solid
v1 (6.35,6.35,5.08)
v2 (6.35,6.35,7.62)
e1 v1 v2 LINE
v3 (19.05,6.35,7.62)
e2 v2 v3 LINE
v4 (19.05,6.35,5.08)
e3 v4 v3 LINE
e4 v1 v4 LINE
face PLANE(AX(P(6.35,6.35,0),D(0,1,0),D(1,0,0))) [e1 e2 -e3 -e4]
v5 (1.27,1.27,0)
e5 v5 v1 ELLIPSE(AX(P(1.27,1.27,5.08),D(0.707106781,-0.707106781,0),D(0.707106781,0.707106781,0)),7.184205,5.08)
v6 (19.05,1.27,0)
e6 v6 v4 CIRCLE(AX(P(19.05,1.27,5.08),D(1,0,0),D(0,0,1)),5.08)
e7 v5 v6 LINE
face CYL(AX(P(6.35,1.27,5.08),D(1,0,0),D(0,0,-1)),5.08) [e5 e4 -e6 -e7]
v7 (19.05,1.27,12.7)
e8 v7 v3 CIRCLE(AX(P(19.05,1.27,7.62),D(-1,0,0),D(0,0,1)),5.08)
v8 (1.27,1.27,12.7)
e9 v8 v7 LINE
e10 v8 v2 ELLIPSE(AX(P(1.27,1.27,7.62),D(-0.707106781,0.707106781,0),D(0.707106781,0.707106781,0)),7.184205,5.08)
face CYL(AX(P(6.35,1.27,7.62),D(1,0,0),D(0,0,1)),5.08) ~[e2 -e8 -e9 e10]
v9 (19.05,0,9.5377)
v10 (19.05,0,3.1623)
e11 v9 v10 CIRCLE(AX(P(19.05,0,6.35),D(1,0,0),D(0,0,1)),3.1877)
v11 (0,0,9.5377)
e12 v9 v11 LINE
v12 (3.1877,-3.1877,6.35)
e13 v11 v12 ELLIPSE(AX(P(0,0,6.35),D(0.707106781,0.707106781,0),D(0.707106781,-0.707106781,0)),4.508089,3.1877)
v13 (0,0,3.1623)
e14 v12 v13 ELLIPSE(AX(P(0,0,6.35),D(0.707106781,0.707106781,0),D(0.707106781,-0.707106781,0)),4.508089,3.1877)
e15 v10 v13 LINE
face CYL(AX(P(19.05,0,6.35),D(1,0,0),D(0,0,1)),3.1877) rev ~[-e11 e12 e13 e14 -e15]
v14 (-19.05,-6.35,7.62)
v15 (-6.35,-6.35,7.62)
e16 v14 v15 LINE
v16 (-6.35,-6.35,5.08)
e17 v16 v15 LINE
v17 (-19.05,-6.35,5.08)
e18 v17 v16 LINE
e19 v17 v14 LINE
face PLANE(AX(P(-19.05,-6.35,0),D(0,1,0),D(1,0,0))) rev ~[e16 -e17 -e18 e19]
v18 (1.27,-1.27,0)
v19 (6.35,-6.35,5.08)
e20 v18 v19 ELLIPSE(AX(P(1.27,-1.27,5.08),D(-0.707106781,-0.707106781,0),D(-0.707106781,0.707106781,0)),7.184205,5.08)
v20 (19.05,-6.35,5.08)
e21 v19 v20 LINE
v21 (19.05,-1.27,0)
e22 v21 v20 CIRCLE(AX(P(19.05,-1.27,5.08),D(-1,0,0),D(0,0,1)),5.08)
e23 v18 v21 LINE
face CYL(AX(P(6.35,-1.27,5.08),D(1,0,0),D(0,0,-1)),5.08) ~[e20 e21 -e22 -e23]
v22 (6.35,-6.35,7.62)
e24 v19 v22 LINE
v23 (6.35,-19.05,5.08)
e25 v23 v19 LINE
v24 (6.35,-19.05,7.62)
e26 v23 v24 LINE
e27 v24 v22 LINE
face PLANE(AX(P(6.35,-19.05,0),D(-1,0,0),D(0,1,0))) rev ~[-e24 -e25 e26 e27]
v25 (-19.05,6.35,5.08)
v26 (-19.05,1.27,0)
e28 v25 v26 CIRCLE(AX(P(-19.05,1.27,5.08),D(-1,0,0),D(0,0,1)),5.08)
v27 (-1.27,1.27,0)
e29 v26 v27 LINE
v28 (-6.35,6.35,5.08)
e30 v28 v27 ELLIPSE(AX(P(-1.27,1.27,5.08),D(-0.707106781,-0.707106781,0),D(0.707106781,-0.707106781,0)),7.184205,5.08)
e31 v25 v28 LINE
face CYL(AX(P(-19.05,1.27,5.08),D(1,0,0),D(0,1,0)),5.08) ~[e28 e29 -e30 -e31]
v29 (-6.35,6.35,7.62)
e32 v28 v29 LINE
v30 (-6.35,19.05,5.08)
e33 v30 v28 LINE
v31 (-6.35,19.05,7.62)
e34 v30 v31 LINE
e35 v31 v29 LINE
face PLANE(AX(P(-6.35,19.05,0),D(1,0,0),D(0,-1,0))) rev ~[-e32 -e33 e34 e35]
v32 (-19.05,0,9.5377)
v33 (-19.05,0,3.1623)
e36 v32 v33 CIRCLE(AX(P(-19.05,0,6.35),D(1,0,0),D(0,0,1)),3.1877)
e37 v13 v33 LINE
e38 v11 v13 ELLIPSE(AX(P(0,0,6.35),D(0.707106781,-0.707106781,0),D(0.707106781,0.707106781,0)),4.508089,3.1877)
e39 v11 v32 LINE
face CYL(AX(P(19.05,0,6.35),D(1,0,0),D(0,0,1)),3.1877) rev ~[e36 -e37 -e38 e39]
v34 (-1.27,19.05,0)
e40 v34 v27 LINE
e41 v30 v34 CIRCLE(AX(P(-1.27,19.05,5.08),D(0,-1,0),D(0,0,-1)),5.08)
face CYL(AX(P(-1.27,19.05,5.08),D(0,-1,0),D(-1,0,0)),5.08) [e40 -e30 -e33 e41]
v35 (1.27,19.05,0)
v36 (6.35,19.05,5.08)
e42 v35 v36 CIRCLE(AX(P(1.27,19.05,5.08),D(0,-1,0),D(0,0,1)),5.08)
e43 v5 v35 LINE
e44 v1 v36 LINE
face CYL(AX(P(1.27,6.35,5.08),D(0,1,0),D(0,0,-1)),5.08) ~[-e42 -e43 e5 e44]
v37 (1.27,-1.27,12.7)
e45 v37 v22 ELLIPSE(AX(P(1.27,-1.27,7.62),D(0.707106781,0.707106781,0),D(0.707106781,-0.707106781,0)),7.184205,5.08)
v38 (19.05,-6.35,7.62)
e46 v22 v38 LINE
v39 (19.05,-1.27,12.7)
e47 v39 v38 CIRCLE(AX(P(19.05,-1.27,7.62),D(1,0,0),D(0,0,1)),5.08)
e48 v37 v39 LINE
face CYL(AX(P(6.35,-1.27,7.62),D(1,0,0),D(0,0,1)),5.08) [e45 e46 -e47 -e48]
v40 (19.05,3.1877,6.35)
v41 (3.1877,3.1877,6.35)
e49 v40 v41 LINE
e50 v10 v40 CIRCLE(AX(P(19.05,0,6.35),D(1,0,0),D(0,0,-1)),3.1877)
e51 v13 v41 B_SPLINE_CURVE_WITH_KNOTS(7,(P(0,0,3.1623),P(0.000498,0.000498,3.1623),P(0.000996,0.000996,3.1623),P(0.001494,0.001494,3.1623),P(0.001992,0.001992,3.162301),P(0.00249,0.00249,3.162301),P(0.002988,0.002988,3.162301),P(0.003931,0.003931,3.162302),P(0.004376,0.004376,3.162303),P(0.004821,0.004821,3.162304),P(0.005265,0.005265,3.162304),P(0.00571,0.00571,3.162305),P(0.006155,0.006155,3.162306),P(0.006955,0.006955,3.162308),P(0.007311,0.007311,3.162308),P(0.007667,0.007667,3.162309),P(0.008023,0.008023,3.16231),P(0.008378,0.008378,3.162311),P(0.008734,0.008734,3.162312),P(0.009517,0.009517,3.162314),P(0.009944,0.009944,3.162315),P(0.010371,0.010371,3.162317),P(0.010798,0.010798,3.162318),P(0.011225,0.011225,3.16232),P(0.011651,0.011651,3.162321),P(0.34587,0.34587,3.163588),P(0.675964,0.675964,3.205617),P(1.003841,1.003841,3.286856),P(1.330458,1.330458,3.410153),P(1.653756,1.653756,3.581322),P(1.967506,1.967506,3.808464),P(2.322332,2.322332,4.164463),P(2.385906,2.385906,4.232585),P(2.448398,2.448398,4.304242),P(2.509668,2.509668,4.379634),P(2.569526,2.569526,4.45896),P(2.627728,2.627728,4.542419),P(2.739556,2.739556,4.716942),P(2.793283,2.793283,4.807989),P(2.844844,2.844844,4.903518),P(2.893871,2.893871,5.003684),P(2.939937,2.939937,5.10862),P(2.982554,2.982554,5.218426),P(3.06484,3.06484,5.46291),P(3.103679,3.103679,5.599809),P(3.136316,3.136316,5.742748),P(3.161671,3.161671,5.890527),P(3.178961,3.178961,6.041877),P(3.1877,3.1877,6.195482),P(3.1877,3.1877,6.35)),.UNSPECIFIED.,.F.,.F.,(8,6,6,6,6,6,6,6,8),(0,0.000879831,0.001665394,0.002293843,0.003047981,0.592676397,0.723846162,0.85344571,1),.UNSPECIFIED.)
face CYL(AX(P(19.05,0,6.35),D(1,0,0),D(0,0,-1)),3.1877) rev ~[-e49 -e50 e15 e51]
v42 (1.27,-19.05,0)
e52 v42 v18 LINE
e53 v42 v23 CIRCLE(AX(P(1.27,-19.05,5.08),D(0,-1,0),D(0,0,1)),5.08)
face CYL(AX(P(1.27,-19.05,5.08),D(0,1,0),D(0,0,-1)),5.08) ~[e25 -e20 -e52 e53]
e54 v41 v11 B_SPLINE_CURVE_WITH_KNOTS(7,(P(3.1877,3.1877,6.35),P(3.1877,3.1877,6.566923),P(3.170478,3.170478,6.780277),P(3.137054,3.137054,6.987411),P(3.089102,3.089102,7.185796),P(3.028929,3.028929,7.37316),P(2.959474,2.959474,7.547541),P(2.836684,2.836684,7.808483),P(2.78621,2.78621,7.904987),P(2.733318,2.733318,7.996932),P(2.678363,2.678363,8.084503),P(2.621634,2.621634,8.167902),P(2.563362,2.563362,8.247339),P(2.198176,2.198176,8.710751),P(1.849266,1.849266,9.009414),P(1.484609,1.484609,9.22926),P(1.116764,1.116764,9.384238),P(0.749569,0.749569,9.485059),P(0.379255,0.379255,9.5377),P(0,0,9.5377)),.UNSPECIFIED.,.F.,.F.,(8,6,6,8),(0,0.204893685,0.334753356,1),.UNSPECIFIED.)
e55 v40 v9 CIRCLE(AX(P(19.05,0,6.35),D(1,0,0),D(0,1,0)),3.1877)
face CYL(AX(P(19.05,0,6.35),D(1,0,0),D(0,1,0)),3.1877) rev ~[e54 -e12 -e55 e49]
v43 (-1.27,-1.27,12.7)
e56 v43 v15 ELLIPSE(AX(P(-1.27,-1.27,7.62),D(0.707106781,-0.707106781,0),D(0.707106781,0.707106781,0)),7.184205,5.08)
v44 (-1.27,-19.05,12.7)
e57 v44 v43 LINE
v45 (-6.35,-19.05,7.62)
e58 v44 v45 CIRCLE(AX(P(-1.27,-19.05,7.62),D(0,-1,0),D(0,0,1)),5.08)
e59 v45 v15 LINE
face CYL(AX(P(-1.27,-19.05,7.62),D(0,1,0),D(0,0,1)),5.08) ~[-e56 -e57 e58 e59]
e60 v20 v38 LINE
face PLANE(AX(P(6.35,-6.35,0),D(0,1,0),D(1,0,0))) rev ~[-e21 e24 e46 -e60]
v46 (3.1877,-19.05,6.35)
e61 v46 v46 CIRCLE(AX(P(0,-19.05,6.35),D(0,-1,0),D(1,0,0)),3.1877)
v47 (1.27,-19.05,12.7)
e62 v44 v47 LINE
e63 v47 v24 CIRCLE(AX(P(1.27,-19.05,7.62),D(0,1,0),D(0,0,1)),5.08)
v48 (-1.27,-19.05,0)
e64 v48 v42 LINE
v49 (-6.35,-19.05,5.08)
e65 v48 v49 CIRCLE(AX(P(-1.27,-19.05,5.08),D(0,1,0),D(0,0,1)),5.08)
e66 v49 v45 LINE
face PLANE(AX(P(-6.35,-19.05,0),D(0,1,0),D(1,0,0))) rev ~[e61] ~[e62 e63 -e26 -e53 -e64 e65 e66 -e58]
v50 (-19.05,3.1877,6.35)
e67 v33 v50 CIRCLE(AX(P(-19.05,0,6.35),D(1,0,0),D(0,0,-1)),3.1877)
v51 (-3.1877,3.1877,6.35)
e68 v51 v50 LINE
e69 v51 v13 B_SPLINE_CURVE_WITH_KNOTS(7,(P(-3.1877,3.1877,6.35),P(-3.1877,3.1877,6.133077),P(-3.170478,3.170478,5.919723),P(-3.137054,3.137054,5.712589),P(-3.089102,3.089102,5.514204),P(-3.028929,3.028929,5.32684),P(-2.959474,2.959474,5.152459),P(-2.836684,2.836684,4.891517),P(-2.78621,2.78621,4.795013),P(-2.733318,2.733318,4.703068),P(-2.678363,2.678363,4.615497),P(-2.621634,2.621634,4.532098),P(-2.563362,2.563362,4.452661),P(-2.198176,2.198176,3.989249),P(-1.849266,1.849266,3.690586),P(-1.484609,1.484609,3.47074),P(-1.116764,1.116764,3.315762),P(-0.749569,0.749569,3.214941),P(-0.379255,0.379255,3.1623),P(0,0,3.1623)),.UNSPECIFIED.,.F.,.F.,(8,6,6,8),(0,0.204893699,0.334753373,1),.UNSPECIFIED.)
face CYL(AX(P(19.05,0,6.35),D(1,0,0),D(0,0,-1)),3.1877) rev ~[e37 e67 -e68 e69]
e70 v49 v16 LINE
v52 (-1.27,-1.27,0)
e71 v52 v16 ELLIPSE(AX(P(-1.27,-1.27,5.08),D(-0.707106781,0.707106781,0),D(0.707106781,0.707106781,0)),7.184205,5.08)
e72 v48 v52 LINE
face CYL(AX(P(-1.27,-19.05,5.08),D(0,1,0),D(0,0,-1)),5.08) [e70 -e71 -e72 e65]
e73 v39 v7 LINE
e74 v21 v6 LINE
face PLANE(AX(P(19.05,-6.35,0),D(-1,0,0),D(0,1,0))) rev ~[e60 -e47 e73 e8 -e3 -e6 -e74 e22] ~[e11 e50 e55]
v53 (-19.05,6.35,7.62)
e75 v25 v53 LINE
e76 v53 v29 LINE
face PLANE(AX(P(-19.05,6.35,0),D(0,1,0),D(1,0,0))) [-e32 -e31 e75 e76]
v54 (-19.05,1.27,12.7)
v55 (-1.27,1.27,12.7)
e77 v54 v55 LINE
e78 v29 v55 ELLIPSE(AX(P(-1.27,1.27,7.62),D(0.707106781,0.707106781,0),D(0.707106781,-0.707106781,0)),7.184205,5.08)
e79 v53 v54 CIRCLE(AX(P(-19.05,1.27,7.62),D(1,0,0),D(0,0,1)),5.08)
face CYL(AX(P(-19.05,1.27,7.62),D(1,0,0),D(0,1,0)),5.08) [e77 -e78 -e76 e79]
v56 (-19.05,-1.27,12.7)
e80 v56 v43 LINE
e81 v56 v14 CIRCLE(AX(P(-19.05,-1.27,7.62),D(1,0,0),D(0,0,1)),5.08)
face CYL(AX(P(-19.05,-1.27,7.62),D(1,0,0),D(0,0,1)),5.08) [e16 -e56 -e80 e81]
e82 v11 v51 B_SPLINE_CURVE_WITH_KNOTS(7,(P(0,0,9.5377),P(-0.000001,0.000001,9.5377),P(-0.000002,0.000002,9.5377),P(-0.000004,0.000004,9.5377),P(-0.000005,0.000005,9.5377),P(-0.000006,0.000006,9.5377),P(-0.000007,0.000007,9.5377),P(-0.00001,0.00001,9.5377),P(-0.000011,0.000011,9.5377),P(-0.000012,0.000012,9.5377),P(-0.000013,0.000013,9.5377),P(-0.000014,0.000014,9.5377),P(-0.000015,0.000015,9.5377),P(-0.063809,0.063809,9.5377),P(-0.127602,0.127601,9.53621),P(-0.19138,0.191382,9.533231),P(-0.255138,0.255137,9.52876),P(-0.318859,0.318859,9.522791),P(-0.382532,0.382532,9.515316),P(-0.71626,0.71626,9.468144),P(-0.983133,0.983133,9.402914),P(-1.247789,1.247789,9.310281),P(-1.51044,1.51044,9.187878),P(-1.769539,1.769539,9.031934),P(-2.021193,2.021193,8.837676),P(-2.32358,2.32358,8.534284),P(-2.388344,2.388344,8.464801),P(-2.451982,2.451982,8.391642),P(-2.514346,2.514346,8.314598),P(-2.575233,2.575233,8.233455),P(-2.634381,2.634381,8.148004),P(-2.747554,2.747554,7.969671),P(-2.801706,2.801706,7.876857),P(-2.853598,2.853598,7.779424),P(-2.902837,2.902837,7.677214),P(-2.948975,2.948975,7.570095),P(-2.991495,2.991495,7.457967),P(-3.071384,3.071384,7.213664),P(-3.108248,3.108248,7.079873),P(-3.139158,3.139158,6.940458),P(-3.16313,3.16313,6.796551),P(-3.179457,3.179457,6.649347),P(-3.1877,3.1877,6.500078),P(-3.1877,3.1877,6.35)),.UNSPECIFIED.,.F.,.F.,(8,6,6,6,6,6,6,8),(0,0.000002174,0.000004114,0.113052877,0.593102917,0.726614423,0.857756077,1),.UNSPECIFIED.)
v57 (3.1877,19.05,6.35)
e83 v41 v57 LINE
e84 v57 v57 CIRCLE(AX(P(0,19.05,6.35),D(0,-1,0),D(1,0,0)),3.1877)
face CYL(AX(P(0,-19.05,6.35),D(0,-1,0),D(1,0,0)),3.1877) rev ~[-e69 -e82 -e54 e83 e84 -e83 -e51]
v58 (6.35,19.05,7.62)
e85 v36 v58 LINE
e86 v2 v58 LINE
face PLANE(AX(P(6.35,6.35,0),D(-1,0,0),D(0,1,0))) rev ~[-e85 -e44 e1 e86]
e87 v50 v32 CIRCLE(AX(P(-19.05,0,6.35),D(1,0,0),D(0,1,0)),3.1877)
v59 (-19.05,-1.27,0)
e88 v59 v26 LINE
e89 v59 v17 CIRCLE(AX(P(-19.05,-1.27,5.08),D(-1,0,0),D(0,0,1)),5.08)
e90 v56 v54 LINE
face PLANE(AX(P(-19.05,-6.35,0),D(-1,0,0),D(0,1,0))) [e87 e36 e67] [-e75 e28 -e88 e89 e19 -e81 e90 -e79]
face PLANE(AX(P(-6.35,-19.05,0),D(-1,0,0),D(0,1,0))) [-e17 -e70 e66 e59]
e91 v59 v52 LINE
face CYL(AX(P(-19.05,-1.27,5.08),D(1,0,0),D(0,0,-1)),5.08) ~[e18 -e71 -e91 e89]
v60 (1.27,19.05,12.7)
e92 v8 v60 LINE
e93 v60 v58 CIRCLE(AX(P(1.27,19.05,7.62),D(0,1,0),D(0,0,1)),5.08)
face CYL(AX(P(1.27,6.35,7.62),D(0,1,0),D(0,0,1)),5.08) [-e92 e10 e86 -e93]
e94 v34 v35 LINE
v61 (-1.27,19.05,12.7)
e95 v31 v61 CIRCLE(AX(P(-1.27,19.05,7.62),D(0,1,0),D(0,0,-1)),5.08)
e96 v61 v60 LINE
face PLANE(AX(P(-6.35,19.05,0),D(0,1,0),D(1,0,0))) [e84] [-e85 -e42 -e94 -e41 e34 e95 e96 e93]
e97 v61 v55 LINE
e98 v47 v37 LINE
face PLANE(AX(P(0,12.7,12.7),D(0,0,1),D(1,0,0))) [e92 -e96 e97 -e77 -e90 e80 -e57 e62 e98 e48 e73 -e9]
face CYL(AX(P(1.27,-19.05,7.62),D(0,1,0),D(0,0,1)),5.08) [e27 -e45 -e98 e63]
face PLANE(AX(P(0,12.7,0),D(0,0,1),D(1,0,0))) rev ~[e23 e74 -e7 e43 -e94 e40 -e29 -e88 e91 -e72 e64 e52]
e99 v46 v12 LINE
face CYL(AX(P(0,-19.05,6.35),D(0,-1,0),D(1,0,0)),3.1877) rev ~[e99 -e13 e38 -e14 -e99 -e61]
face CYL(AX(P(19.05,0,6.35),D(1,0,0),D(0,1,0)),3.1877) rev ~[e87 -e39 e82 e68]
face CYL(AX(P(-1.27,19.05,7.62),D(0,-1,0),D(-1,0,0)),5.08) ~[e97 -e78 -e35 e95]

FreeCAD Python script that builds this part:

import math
import FreeCAD as App
import Part
import Sketcher
from FreeCAD import Vector
Q = App.Units.Quantity


def edges_at(feature, points):
    """Names of the edges that pass closest to the given points."""
    edges = feature.Shape.Edges
    near = lambda p: min(range(len(edges)), key=lambda i: edges[i].distToShape(Part.Vertex(*p))[0])
    return sorted({f"Edge{near(p) + 1}" for p in points})


def add_polygon(sketch, points):
    """Adds a closed chain of lines whose ends are joined by coincident constraints."""
    first, n = sketch.GeometryCount, len(points)
    for a, b in zip(points, points[1:] + points[:1]):
        sketch.addGeometry(Part.LineSegment(App.Vector(*a, 0), App.Vector(*b, 0)), False)
    for i in range(n):
        sketch.addConstraint(Sketcher.Constraint("Coincident", first + i, 2, first + (i + 1) % n, 1))

doc = App.newDocument("Part")
body = doc.addObject("PartDesign::Body", "Body")

sketch1 = doc.addObject("Sketcher::SketchObject", "Sketch")
body.addObject(sketch1)
sketch1.AttachmentSupport = (doc.XY_Plane, [""])
sketch1.MapMode = "FlatFace"
add_polygon(sketch1, [(-6, 19), (-6, 6), (-19, 6), (-19, -6), (-6, -6), (-6, -19), (6, -19), (6, -6), (19, -6), (19, 6), (6, 6), (6, 19)])
sketch1.addConstraint(Sketcher.Constraint("Vertical", 0))
sketch1.addConstraint(Sketcher.Constraint("Horizontal", 1))
sketch1.addConstraint(Sketcher.Constraint("Vertical", 2))
sketch1.addConstraint(Sketcher.Constraint("Horizontal", 3))
sketch1.addConstraint(Sketcher.Constraint("Vertical", 4))
sketch1.addConstraint(Sketcher.Constraint("Horizontal", 5))
sketch1.addConstraint(Sketcher.Constraint("Vertical", 6))
sketch1.addConstraint(Sketcher.Constraint("Horizontal", 7))
sketch1.addConstraint(Sketcher.Constraint("Vertical", 8))
sketch1.addConstraint(Sketcher.Constraint("Horizontal", 9))
sketch1.addConstraint(Sketcher.Constraint("Vertical", 10))
sketch1.addConstraint(Sketcher.Constraint("Horizontal", 11))
sketch1.addConstraint(Sketcher.Constraint("Symmetric", 0, 2, 6, 2, -1, 1))
sketch1.addConstraint(Sketcher.Constraint("Symmetric", 2, 2, 8, 2, -1, 1))
sketch1.addConstraint(Sketcher.Constraint("Symmetric", 4, 2, 10, 2, -1, 1))
sketch1.addConstraint(Sketcher.Constraint("Symmetric", 3, 2, 6, 2, -2))
sketch1.addConstraint(Sketcher.Constraint("Equal", 3, 5))
sketch1.addConstraint(Sketcher.Constraint("Equal", 11, 0))
sketch1.addConstraint(Sketcher.Constraint("Equal", 0, 2))
sketch1.addConstraint(Sketcher.Constraint("DistanceX", 1, 2, 1, 1, Q("0.5 in")))
pad1 = doc.addObject("PartDesign::Pad", "Pad")
body.addObject(pad1)
pad1.Profile = sketch1
pad1.Length = Q("0.5 in")

sketch2 = doc.addObject("Sketcher::SketchObject", "Sketch001")
body.addObject(sketch2)
sketch2.AttachmentSupport = (doc.YZ_Plane, [""])
sketch2.MapMode = "FlatFace"
sketch2.AttachmentOffset = App.Placement(Vector(0, 0, 0.75 * 25.4), App.Rotation())
sketch2.addGeometry(Part.ArcOfCircle(Part.Circle(Vector(0, 6.3, 0), Vector(0, 0, 1), 3.2), math.radians(90), math.radians(270)), False)
sketch2.addGeometry(Part.ArcOfCircle(Part.Circle(Vector(0, 6.3, 0), Vector(0, 0, 1), 3.2), math.radians(-90), math.radians(0)), False)
sketch2.addGeometry(Part.ArcOfCircle(Part.Circle(Vector(0, 6.3, 0), Vector(0, 0, 1), 3.2), math.radians(0), math.radians(90)), False)
sketch2.addConstraint(Sketcher.Constraint("Tangent", 0, 2, 1, 1))
sketch2.addConstraint(Sketcher.Constraint("Tangent", 1, 2, 2, 1))
sketch2.addConstraint(Sketcher.Constraint("Tangent", 2, 2, 0, 1))
sketch2.addConstraint(Sketcher.Constraint("PointOnObject", 0, 3, -2))
sketch2.addConstraint(Sketcher.Constraint("PointOnObject", 0, 2, -2))
sketch2.addConstraint(Sketcher.Constraint("PointOnObject", 2, 2, -2))
sketch2.addConstraint(Sketcher.Constraint("Horizontal", 2, 3, 1, 2))
sketch2.addConstraint(Sketcher.Constraint("Radius", 0, Q("0.1255 in")))
sketch2.addConstraint(Sketcher.Constraint("DistanceY", -1, 1, 0, 3, Q("0.25 in")))
pocket1 = doc.addObject("PartDesign::Pocket", "Pocket")
body.addObject(pocket1)
pocket1.Profile = sketch2
pocket1.Length = Q("2 in")

sketch3 = doc.addObject("Sketcher::SketchObject", "Sketch002")
body.addObject(sketch3)
sketch3.AttachmentSupport = (doc.XZ_Plane, [""])
sketch3.MapMode = "FlatFace"
sketch3.AttachmentOffset = App.Placement(Vector(0, 0, 0.75 * 25.4), App.Rotation())
sketch3.addGeometry(Part.Circle(Vector(0, 6.3, 0), Vector(0, 0, 1), 3.2), False)
sketch3.addConstraint(Sketcher.Constraint("PointOnObject", 0, 3, -2))
sketch3.addConstraint(Sketcher.Constraint("Diameter", 0, Q("0.251 in")))
sketch3.addConstraint(Sketcher.Constraint("DistanceY", -1, 1, 0, 3, Q("0.25 in")))
pocket2 = doc.addObject("PartDesign::Pocket", "Pocket001")
body.addObject(pocket2)
pocket2.Profile = sketch3
pocket2.Length = Q("3 in")
doc.recompute()

fillet = doc.addObject("PartDesign::Fillet", "Fillet")
body.addObject(fillet)
fillet.Base = (pocket2, edges_at(pocket2, [
    (-6.35, -12.7, 0),
    (6.35, -12.7, 0),
    (12.7, -6.35, 0),
    (12.7, 6.35, 0),
    (6.35, 12.7, 0),
    (-6.35, 12.7, 0),
    (-12.7, -6.35, 0),
    (-12.7, 6.35, 0),
    (-12.7, -6.35, 12.7),
    (-6.35, -12.7, 12.7),
    (12.7, -6.35, 12.7),
    (-12.7, 6.35, 12.7),
    (-6.35, 12.7, 12.7),
    (6.35, 12.7, 12.7),
    (6.35, -12.7, 12.7),
    (12.7, 6.35, 12.7),
]))
fillet.Radius = Q("0.2 in")

doc.recompute()
